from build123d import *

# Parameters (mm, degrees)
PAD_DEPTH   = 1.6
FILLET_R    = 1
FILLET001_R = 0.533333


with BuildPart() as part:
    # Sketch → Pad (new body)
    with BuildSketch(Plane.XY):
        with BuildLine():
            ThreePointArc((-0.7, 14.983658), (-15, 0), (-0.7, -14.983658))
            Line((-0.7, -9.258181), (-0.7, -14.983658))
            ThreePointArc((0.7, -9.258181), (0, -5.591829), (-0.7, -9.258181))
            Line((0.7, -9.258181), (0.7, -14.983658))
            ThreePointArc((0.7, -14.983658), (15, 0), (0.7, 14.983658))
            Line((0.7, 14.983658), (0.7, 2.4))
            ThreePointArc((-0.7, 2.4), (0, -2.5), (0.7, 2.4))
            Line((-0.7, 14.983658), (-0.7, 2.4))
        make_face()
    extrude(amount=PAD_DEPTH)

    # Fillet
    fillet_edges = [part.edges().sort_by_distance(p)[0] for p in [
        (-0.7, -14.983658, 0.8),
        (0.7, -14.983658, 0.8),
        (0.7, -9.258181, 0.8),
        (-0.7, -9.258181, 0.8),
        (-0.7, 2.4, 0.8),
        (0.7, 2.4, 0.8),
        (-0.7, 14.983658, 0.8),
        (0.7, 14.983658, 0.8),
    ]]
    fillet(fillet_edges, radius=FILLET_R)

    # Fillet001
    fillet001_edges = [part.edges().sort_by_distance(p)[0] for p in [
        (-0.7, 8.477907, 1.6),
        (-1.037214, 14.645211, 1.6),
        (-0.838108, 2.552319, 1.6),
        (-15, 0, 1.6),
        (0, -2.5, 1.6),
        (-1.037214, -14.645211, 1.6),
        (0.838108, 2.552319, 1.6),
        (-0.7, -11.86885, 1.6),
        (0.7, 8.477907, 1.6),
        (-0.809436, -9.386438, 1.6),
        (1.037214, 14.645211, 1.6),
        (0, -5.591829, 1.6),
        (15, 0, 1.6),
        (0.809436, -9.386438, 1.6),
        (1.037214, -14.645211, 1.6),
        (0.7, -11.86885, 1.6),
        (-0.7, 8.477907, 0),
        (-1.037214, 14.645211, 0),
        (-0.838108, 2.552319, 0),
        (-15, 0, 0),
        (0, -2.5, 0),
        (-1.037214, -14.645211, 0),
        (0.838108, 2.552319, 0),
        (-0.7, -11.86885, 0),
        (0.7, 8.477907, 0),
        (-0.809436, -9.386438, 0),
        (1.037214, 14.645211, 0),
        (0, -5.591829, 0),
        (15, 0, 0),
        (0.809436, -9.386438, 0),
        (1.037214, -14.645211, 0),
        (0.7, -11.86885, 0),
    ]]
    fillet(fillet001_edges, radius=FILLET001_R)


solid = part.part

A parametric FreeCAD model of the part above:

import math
import FreeCAD as App
import Part
import Sketcher

V = App.Vector


def edges_at(feature, points):
    """Names of the edges that pass closest to the given points."""
    edges = feature.Shape.Edges
    near = lambda p: min(range(len(edges)), key=lambda i: edges[i].distToShape(Part.Vertex(*p))[0])
    return sorted({f"Edge{near(p) + 1}" for p in points})

doc = App.newDocument("Part")
body = doc.addObject("PartDesign::Body", "Body")

# Sketch on XY plane
sketch1 = body.newObject("Sketcher::SketchObject", "Sketch")
sketch1.AttachmentSupport = (doc.getObject("XY_Plane"), [""])
sketch1.MapMode = "FlatFace"
sketch1.addGeometry([
    Part.ArcOfCircle(Part.Circle(V(0, 0, 0), V(0, 0, 1), 15), math.radians(93), math.radians(267)),  # 0
    Part.LineSegment(V(-0.7, -15, 0), V(-0.7, -9.3, 0)),  # 1
    Part.ArcOfCircle(Part.Circle(V(0, -7.5, 0), V(0, 0, 1), 1.9), math.radians(-68), math.radians(248)),  # 2
    Part.LineSegment(V(0.7, -9.3, 0), V(0.7, -15, 0)),  # 3
    Part.ArcOfCircle(Part.Circle(V(0, 0, 0), V(0, 0, 1), 15), math.radians(-87), math.radians(87)),  # 4
    Part.LineSegment(V(0.7, 15, 0), V(0.7, 2.4, 0)),  # 5
    Part.ArcOfCircle(Part.Circle(V(0, 0, 0), V(0, 0, 1), 2.5), math.radians(106), math.radians(434)),  # 6
    Part.LineSegment(V(-0.7, 2.4, 0), V(-0.7, 15, 0)),  # 7
], False)
sketch1.addConstraint([
    Sketcher.Constraint("Coincident", 0, 2, 1, 1),
    Sketcher.Constraint("Coincident", 1, 2, 2, 2),
    Sketcher.Constraint("Coincident", 2, 1, 3, 1),
    Sketcher.Constraint("Coincident", 3, 2, 4, 1),
    Sketcher.Constraint("Coincident", 4, 2, 5, 1),
    Sketcher.Constraint("Coincident", 5, 2, 6, 2),
    Sketcher.Constraint("Coincident", 6, 1, 7, 1),
    Sketcher.Constraint("Coincident", 7, 2, 0, 1),
    Sketcher.Constraint("Vertical", 1),
    Sketcher.Constraint("Vertical", 3),
    Sketcher.Constraint("Vertical", 5),
    Sketcher.Constraint("Vertical", 7),
    Sketcher.Constraint("Coincident", 0, 3, -1, 1),
    Sketcher.Constraint("Coincident", 4, 3, -1, 1),
    Sketcher.Constraint("Coincident", 6, 3, -1, 1),
    Sketcher.Constraint("Equal", 0, 4),
    Sketcher.Constraint("Symmetric", 1, 2, 2, 1, -2),
    Sketcher.Constraint("Horizontal", 5, 2, 6, 1),
    Sketcher.Constraint("Vertical", 3, 2, 4, 2),
    Sketcher.Constraint("Radius", 0, 15.0),
    Sketcher.Constraint("Radius", 2, 1.9),
    Sketcher.Constraint("Radius", 6, 2.5),
    Sketcher.Constraint("DistanceX", 0, 2, -1, 1, 0.7),
    Sketcher.Constraint("DistanceY", 1, 1, 1, 2, 5.725477),
])
pad1 = body.newObject("PartDesign::Pad", "Pad")
pad1.Profile = sketch1
pad1.Length = 1.6
doc.recompute()

fillet = body.newObject("PartDesign::Fillet", "Fillet")
fillet.Base = (pad1, edges_at(pad1, [
    (-0.7, -14.984, 0.8),
    (0.7, -14.984, 0.8),
    (0.7, -9.258, 0.8),
    (-0.7, -9.258, 0.8),
    (-0.7, 2.4, 0.8),
    (0.7, 2.4, 0.8),
    (-0.7, 14.984, 0.8),
    (0.7, 14.984, 0.8),
]))
fillet.Radius = 1
doc.recompute()

fillet2 = body.newObject("PartDesign::Fillet", "Fillet001")
fillet2.Base = (fillet, edges_at(fillet, [
    (-0.7, 8.478, 1.6),
    (-1.037, 14.645, 1.6),
    (-0.838, 2.552, 1.6),
    (-15, 0, 1.6),
    (0, -2.5, 1.6),
    (-1.037, -14.645, 1.6),
    (0.838, 2.552, 1.6),
    (-0.7, -11.869, 1.6),
    (0.7, 8.478, 1.6),
    (-0.809, -9.386, 1.6),
    (1.037, 14.645, 1.6),
    (0, -5.592, 1.6),
    (15, 0, 1.6),
    (0.809, -9.386, 1.6),
    (1.037, -14.645, 1.6),
    (0.7, -11.869, 1.6),
    (-0.7, 8.478, 0),
    (-1.037, 14.645, 0),
    (-0.838, 2.552, 0),
    (-15, 0, 0),
    (0, -2.5, 0),
    (-1.037, -14.645, 0),
    (0.838, 2.552, 0),
    (-0.7, -11.869, 0),
    (0.7, 8.478, 0),
    (-0.809, -9.386, 0),
    (1.037, 14.645, 0),
    (0, -5.592, 0),
    (15, 0, 0),
    (0.809, -9.386, 0),
    (1.037, -14.645, 0),
    (0.7, -11.869, 0),
]))
fillet2.Radius = 0.533333

doc.recompute()
